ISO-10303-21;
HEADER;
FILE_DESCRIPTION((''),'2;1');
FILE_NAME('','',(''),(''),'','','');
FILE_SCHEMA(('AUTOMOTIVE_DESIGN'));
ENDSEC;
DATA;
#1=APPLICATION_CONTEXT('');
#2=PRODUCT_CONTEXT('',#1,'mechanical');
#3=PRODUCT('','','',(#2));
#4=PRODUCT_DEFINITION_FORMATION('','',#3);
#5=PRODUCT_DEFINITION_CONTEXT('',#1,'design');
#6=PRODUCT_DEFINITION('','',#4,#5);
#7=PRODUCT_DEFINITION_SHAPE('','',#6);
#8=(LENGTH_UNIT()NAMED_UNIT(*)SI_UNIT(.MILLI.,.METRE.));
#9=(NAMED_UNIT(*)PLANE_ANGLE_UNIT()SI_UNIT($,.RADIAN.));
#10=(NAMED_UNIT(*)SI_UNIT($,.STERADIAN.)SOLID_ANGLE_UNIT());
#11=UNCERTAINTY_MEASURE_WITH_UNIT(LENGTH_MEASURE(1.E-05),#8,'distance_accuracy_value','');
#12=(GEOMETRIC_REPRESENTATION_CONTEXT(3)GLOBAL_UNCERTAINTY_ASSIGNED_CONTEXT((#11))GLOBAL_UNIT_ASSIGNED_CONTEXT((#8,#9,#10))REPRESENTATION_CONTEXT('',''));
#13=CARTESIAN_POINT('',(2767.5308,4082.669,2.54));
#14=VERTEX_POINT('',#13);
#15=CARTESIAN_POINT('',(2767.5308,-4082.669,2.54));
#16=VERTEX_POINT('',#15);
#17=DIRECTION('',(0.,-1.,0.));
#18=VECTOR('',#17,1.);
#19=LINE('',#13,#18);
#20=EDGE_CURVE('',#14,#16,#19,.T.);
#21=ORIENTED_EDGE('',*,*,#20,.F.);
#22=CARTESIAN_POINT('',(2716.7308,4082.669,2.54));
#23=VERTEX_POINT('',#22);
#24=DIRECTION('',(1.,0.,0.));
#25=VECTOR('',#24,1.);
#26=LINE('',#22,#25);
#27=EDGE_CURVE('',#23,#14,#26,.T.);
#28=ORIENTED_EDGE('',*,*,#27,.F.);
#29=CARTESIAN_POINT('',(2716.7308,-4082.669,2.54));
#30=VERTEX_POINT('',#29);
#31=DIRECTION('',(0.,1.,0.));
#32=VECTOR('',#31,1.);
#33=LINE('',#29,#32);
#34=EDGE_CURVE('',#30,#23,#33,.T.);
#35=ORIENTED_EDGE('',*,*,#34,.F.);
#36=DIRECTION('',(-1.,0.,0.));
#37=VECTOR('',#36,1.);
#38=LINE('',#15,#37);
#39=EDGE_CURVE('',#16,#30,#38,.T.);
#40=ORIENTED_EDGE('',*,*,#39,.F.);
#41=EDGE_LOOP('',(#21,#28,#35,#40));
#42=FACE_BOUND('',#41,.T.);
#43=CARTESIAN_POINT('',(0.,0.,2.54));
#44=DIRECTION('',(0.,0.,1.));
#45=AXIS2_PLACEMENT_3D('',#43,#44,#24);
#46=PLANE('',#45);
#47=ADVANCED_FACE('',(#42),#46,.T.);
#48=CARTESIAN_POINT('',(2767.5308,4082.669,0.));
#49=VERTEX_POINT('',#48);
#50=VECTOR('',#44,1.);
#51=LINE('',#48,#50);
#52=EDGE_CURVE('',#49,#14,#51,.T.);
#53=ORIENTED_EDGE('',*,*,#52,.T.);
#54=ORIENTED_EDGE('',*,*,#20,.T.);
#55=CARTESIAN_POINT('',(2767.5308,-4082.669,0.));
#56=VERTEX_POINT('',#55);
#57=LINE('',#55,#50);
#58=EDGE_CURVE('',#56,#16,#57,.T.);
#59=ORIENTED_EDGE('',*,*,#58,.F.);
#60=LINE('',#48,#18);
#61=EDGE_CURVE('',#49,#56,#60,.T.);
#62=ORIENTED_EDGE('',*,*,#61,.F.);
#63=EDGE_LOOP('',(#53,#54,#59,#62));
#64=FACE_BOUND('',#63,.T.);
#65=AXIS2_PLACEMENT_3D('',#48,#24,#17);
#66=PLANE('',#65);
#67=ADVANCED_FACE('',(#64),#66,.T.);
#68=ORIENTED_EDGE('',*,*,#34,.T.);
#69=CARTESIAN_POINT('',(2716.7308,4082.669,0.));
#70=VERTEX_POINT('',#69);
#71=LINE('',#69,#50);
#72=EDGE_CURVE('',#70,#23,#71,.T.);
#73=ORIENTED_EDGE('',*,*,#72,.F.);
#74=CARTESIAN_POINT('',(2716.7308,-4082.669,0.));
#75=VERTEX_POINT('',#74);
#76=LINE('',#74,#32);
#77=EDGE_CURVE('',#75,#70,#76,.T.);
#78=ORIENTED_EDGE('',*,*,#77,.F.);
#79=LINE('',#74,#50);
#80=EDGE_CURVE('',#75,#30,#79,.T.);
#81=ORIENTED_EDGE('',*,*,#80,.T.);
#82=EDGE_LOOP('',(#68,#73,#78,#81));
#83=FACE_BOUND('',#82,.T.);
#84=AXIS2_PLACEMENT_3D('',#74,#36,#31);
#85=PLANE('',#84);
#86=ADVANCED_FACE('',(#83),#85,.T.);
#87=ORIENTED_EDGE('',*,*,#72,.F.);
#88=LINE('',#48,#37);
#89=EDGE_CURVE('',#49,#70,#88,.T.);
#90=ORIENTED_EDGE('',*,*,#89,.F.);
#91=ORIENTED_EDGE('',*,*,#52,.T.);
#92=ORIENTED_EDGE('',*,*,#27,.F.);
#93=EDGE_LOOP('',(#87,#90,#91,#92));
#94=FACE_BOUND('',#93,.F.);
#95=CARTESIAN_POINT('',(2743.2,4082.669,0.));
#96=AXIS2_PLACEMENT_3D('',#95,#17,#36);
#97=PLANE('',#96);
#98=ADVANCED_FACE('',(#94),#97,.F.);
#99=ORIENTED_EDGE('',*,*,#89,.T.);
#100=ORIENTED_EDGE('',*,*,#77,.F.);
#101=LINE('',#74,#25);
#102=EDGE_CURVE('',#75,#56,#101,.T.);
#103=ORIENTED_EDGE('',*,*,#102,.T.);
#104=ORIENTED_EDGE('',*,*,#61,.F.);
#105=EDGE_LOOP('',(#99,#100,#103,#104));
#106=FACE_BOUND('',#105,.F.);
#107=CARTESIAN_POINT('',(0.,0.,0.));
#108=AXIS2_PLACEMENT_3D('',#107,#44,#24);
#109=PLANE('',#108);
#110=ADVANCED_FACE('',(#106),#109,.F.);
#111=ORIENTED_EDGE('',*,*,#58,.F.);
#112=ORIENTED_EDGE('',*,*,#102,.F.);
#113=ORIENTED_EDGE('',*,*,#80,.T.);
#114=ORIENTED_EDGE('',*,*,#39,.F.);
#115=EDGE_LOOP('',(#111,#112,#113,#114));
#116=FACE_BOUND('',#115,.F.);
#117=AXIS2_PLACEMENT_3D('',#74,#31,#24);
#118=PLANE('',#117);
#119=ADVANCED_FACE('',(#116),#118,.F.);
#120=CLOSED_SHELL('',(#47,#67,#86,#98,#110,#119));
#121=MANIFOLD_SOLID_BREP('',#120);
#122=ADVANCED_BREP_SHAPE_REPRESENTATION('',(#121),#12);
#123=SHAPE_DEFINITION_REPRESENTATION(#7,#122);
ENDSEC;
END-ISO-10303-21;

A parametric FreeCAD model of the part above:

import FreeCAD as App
import Part
import Sketcher

V = App.Vector
Q = App.Units.Quantity

doc = App.newDocument("Part")
params = doc.addObject("Spreadsheet::Sheet", "Params")
for row, (alias, value) in enumerate([
    ("sketch1_width", "2 in"),
    ("sketch1_height", "321.47 in"),
    ("pad1_length", "0.1 in"),
], start=1):
    params.set(f"A{row}", alias)
    params.set(f"B{row}", "=" + value)
    params.setAlias(f"B{row}", alias)

body = doc.addObject("PartDesign::Body", "Body")

sketch1 = body.newObject("Sketcher::SketchObject", "Sketch")
sketch1.AttachmentSupport = (doc.getObject("XY_Plane"), [""])
sketch1.MapMode = "FlatFace"
sketch1.addGeometry([
    Part.LineSegment(V(2717, 4083, 0), V(2717, -4083, 0)),
    Part.LineSegment(V(2717, -4083, 0), V(2768, -4083, 0)),
    Part.LineSegment(V(2768, -4083, 0), V(2768, 4083, 0)),
    Part.LineSegment(V(2768, 4083, 0), V(2717, 4083, 0)),
], False)
sketch1.addConstraint([
    Sketcher.Constraint("Coincident", 0, 2, 1, 1),
    Sketcher.Constraint("Coincident", 1, 2, 2, 1),
    Sketcher.Constraint("Coincident", 2, 2, 3, 1),
    Sketcher.Constraint("Coincident", 3, 2, 0, 1),
    Sketcher.Constraint("Vertical", 0),
    Sketcher.Constraint("Horizontal", 1),
    Sketcher.Constraint("Vertical", 2),
    Sketcher.Constraint("Horizontal", 3),
    Sketcher.Constraint("DistanceX", 1, 1, 1, 2, Q("2 in")),
    Sketcher.Constraint("DistanceY", 0, 2, 0, 1, Q("321.47 in")),
    Sketcher.Constraint("DistanceY", 0, 2, -1, 1, Q("160.735 in")),
    Sketcher.Constraint("DistanceX", -1, 1, 0, 2, Q("106.9579 in")),
])
sketch1.setExpression("Constraints[8]", "Params.sketch1_width")
sketch1.setExpression("Constraints[9]", "Params.sketch1_height")
pad1 = body.newObject("PartDesign::Pad", "Pad")
pad1.Profile = sketch1
pad1.setExpression("Length", "Params.pad1_length")

doc.recompute()
